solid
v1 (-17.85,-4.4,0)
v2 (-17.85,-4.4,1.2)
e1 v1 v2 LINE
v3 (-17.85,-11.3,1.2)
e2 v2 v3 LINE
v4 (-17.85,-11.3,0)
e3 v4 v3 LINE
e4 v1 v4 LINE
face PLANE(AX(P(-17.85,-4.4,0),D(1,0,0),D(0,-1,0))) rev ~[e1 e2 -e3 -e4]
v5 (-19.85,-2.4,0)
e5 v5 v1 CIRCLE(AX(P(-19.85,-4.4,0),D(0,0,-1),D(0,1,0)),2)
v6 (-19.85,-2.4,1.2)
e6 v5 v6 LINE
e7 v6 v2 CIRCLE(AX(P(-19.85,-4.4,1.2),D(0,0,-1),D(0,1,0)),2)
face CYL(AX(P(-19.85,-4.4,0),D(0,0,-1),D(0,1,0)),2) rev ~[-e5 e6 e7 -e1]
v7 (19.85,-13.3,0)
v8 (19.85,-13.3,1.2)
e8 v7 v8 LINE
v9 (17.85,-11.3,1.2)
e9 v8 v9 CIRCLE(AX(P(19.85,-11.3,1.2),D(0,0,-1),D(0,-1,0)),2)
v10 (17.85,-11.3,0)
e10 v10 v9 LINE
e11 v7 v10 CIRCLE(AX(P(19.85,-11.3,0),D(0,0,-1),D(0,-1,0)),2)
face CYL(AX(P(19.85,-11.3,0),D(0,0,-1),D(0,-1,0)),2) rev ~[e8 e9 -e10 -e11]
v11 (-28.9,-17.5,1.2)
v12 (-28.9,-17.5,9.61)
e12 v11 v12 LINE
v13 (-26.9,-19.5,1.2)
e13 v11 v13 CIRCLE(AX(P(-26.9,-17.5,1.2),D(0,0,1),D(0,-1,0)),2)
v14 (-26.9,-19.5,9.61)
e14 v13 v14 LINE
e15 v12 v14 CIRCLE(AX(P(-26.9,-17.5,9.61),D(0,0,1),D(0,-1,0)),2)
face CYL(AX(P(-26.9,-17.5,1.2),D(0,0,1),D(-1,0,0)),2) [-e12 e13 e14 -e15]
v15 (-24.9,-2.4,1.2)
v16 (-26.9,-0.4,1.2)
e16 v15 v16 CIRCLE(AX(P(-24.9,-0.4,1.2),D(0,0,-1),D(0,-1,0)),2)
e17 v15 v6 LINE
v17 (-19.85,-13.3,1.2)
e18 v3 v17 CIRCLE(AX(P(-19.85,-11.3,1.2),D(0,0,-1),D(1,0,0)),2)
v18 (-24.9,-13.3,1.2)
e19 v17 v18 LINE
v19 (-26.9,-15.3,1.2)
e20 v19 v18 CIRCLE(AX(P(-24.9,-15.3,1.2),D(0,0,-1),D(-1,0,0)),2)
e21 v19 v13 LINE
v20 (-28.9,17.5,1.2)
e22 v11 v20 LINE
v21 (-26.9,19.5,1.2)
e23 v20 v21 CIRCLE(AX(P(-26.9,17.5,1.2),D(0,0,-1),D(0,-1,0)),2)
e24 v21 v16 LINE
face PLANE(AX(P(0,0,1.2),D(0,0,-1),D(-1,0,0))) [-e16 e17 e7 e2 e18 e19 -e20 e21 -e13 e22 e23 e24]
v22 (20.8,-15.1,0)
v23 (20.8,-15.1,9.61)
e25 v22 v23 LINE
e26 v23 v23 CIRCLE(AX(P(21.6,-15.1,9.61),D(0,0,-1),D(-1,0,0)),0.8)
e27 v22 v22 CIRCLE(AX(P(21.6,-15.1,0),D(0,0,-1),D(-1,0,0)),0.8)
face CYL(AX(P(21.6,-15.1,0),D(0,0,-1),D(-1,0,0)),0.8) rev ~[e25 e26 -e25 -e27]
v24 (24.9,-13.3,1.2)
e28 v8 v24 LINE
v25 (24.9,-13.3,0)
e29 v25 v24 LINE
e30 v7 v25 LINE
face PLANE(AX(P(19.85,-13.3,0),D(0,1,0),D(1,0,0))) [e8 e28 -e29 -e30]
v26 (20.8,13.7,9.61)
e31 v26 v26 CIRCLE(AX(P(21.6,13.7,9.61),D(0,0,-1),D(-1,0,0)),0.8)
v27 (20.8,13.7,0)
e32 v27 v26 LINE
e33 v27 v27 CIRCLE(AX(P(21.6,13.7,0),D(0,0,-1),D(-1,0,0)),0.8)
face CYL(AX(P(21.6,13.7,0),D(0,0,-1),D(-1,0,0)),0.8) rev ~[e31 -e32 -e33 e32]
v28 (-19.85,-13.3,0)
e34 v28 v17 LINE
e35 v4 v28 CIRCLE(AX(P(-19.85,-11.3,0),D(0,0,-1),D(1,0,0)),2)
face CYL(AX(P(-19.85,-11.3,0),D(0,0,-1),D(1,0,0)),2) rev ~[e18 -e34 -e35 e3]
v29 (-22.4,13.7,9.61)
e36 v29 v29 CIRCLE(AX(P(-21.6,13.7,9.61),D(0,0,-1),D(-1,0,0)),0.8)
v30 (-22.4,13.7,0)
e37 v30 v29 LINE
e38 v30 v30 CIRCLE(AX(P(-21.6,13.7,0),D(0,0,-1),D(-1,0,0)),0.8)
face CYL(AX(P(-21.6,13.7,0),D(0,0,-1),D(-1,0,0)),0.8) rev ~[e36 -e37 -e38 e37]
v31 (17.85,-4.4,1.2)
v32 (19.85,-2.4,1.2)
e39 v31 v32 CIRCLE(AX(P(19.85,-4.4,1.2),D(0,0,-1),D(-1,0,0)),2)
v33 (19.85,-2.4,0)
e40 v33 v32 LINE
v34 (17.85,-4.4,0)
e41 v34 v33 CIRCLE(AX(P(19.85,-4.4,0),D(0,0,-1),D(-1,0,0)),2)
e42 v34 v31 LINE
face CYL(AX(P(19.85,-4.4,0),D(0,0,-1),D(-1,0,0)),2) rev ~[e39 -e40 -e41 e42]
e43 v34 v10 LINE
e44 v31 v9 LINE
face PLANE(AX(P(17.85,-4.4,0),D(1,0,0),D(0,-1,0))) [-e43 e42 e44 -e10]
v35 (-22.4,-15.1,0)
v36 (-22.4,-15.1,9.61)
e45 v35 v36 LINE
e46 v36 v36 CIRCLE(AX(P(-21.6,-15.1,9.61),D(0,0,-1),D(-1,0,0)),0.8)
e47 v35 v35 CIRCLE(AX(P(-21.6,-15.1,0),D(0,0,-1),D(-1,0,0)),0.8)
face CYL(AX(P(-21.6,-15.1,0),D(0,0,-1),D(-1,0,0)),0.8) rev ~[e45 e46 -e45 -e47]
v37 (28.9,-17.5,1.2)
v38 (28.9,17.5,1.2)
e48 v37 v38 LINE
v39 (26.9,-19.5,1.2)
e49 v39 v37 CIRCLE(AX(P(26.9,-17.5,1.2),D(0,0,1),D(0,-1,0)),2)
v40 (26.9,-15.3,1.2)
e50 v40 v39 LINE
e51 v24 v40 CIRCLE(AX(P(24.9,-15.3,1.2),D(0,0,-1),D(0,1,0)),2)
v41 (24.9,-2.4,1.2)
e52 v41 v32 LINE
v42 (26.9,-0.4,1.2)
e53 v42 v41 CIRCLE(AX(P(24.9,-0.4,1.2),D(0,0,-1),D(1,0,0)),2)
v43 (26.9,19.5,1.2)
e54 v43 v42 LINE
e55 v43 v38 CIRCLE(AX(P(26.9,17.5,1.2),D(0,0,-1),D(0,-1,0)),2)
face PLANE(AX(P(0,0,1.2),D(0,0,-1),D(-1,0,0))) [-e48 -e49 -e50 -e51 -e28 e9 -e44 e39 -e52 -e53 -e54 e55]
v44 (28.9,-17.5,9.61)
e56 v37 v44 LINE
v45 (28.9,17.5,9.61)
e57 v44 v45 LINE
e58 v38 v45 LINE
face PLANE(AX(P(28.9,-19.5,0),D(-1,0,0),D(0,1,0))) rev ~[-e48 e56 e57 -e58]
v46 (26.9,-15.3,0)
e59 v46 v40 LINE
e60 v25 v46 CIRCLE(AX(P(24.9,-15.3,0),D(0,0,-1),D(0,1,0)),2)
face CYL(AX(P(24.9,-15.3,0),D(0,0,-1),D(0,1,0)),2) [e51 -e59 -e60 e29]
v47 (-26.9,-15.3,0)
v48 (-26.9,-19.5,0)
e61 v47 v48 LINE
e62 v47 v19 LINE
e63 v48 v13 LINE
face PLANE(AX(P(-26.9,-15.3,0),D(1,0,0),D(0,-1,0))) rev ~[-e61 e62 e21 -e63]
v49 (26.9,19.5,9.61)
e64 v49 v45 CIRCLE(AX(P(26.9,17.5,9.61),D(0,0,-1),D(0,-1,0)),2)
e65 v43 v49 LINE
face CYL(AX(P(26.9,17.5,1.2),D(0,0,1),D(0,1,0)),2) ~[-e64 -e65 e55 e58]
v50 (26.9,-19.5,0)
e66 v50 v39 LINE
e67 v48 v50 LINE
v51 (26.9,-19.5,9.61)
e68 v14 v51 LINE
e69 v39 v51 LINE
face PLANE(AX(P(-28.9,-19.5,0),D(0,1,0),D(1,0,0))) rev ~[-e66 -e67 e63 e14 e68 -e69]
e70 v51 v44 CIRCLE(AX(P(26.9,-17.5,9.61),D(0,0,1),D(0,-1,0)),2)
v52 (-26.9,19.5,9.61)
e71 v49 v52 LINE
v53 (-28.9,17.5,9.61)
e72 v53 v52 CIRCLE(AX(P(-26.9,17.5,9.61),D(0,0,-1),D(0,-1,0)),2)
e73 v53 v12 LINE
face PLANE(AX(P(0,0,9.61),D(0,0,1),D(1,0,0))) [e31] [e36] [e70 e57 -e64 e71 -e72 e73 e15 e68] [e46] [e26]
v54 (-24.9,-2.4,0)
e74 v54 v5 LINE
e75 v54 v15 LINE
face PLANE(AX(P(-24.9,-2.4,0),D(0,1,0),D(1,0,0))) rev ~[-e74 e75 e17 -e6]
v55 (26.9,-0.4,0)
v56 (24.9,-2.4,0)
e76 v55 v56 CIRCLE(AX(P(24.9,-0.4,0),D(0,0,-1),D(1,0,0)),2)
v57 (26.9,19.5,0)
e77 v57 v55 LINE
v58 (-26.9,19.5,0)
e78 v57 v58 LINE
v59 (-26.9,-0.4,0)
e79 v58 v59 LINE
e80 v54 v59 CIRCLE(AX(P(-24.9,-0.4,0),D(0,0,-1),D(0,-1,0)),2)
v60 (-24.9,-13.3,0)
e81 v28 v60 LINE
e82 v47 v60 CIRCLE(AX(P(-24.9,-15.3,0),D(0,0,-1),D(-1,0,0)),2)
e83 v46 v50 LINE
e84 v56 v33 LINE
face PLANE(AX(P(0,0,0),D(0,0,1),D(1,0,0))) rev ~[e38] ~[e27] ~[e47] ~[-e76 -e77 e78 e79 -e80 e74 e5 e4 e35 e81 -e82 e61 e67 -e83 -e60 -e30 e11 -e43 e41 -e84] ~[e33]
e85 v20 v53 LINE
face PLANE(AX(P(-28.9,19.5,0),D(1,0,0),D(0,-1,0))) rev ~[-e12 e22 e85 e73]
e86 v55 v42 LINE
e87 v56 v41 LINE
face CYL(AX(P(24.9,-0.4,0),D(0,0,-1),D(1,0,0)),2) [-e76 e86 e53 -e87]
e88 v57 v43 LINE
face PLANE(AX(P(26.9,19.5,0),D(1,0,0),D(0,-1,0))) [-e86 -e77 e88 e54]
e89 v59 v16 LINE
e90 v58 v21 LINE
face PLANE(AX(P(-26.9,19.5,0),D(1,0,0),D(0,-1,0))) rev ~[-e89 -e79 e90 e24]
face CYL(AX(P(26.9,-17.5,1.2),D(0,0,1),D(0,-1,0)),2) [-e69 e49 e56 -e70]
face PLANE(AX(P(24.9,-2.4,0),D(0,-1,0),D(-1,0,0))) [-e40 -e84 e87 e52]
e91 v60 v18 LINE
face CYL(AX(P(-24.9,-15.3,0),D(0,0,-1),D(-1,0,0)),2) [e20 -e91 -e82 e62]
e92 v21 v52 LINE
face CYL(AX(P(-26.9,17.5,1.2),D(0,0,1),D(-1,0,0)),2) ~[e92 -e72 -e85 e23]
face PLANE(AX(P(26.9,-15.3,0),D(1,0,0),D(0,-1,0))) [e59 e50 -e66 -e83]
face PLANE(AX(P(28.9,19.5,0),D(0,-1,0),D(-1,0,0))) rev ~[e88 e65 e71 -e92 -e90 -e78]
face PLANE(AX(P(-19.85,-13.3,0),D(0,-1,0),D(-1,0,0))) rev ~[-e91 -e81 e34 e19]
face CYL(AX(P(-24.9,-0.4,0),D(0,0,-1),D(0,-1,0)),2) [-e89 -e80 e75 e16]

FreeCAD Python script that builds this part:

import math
import FreeCAD as App
import Part
import Sketcher
from FreeCAD import Vector


def edges_at(feature, points):
    """Names of the edges that pass closest to the given points."""
    edges = feature.Shape.Edges
    near = lambda p: min(range(len(edges)), key=lambda i: edges[i].distToShape(Part.Vertex(*p))[0])
    return sorted({f"Edge{near(p) + 1}" for p in points})

doc = App.newDocument("Part")
body = doc.addObject("PartDesign::Body", "Body")

# Sketch on XY plane
sketch1 = body.newObject("Sketcher::SketchObject", "Sketch")
sketch1.AttachmentSupport = (doc.getObject("XY_Plane"), [""])
sketch1.MapMode = "FlatFace"
sketch1.addGeometry(Part.LineSegment(Vector(-29, 20, 0), Vector(-29, -20, 0)), False)
sketch1.addGeometry(Part.LineSegment(Vector(-29, -20, 0), Vector(29, -20, 0)), False)
sketch1.addGeometry(Part.LineSegment(Vector(29, -20, 0), Vector(29, 20, 0)), False)
sketch1.addGeometry(Part.LineSegment(Vector(29, 20, 0), Vector(-29, 20, 0)), False)
sketch1.addConstraint(Sketcher.Constraint("Coincident", 0, 2, 1, 1))
sketch1.addConstraint(Sketcher.Constraint("Coincident", 1, 2, 2, 1))
sketch1.addConstraint(Sketcher.Constraint("Coincident", 2, 2, 3, 1))
sketch1.addConstraint(Sketcher.Constraint("Coincident", 3, 2, 0, 1))
sketch1.addConstraint(Sketcher.Constraint("Vertical", 0))
sketch1.addConstraint(Sketcher.Constraint("Horizontal", 1))
sketch1.addConstraint(Sketcher.Constraint("Vertical", 2))
sketch1.addConstraint(Sketcher.Constraint("Horizontal", 3))
sketch1.addConstraint(Sketcher.Constraint("Symmetric", 0, 2, 2, 2, -1, 1))
sketch1.addConstraint(Sketcher.Constraint("DistanceY", 0, 2, 0, 1, 39.0))
sketch1.addConstraint(Sketcher.Constraint("DistanceX", 1, 1, 1, 2, 57.8))
pad1 = body.newObject("PartDesign::Pad", "Pad")
pad1.Profile = sketch1
pad1.Length = 9.61

# Sketch on XY plane
sketch2 = body.newObject("Sketcher::SketchObject", "Sketch001")
sketch2.AttachmentSupport = (doc.getObject("XY_Plane"), [""])
sketch2.MapMode = "FlatFace"
sketch2.addGeometry(Part.Circle(Vector(21.6, -15.1, 0), Vector(0, 0, 1), 0.8), False)
sketch2.addGeometry(Part.Circle(Vector(-21.6, -15.1, 0), Vector(0, 0, 1), 0.8), False)
sketch2.addGeometry(Part.Circle(Vector(21.6, 13.7, 0), Vector(0, 0, 1), 0.8), False)
sketch2.addGeometry(Part.Circle(Vector(-21.6, 13.7, 0), Vector(0, 0, 1), 0.8), False)
sketch2.addConstraint(Sketcher.Constraint("Equal", 0, 1))
sketch2.addConstraint(Sketcher.Constraint("Equal", 1, 2))
sketch2.addConstraint(Sketcher.Constraint("Equal", 2, 3))
sketch2.addConstraint(Sketcher.Constraint("Symmetric", 0, 3, 1, 3, -2))
sketch2.addConstraint(Sketcher.Constraint("Symmetric", 2, 3, 3, 3, -2))
sketch2.addConstraint(Sketcher.Constraint("Vertical", 0, 3, 2, 3))
sketch2.addConstraint(Sketcher.Constraint("Diameter", 0, 1.6))
sketch2.addConstraint(Sketcher.Constraint("DistanceX", -1, 1, 0, 3, 21.6))
sketch2.addConstraint(Sketcher.Constraint("DistanceY", 0, 3, -1, 1, 15.1))
sketch2.addConstraint(Sketcher.Constraint("DistanceY", -1, 1, 2, 3, 13.7))
pocket1 = body.newObject("PartDesign::Pocket", "Pocket")
pocket1.Profile = sketch2
pocket1.Type = "ThroughAll"
pocket1.Reversed = True

# Sketch on XY plane
sketch3 = body.newObject("Sketcher::SketchObject", "Sketch002")
sketch3.AttachmentSupport = (doc.getObject("XY_Plane"), [""])
sketch3.MapMode = "FlatFace"
sketch3.addGeometry(Part.LineSegment(Vector(-28.9, 19.5, 0), Vector(-26.9, 19.5, 0)), False)
sketch3.addGeometry(Part.LineSegment(Vector(-26.9, 19.5, 0), Vector(-26.9, -0.4, 0)), False)
sketch3.addGeometry(Part.ArcOfCircle(Part.Circle(Vector(-24.9, -0.4, 0), Vector(0, 0, 1), 2), math.radians(180), math.radians(270)), False)
sketch3.addGeometry(Part.LineSegment(Vector(-24.9, -2.4, 0), Vector(-19.9, -2.4, 0)), False)
sketch3.addGeometry(Part.ArcOfCircle(Part.Circle(Vector(-19.9, -4.4, 0), Vector(0, 0, 1), 2), math.radians(0), math.radians(90)), False)
sketch3.addGeometry(Part.LineSegment(Vector(-17.9, -4.4, 0), Vector(-17.9, -11.3, 0)), False)
sketch3.addGeometry(Part.ArcOfCircle(Part.Circle(Vector(-19.9, -11.3, 0), Vector(0, 0, 1), 2), math.radians(-90), math.radians(0)), False)
sketch3.addGeometry(Part.LineSegment(Vector(-19.9, -13.3, 0), Vector(-24.9, -13.3, 0)), False)
sketch3.addGeometry(Part.ArcOfCircle(Part.Circle(Vector(-24.9, -15.3, 0), Vector(0, 0, 1), 2), math.radians(90), math.radians(180)), False)
sketch3.addGeometry(Part.LineSegment(Vector(-26.9, -15.3, 0), Vector(-26.9, -19.5, 0)), False)
sketch3.addGeometry(Part.LineSegment(Vector(-26.9, -19.5, 0), Vector(-28.9, -19.5, 0)), False)
sketch3.addGeometry(Part.LineSegment(Vector(-28.9, -19.5, 0), Vector(-28.9, 19.5, 0)), False)
sketch3.addGeometry(Part.LineSegment(Vector(28.9, 19.5, 0), Vector(28.9, -19.5, 0)), False)
sketch3.addGeometry(Part.LineSegment(Vector(28.9, -19.5, 0), Vector(26.9, -19.5, 0)), False)
sketch3.addGeometry(Part.LineSegment(Vector(26.9, -19.5, 0), Vector(26.9, -15.3, 0)), False)
sketch3.addGeometry(Part.ArcOfCircle(Part.Circle(Vector(24.9, -15.3, 0), Vector(0, 0, 1), 2), math.radians(0), math.radians(90)), False)
sketch3.addGeometry(Part.LineSegment(Vector(24.9, -13.3, 0), Vector(19.9, -13.3, 0)), False)
sketch3.addGeometry(Part.ArcOfCircle(Part.Circle(Vector(19.9, -11.3, 0), Vector(0, 0, 1), 2), math.radians(180), math.radians(270)), False)
sketch3.addGeometry(Part.LineSegment(Vector(17.9, -11.3, 0), Vector(17.9, -4.4, 0)), False)
sketch3.addGeometry(Part.ArcOfCircle(Part.Circle(Vector(19.9, -4.4, 0), Vector(0, 0, 1), 2), math.radians(90), math.radians(180)), False)
sketch3.addGeometry(Part.LineSegment(Vector(19.9, -2.4, 0), Vector(24.9, -2.4, 0)), False)
sketch3.addGeometry(Part.ArcOfCircle(Part.Circle(Vector(24.9, -0.4, 0), Vector(0, 0, 1), 2), math.radians(-90), math.radians(0)), False)
sketch3.addGeometry(Part.LineSegment(Vector(26.9, -0.4, 0), Vector(26.9, 19.5, 0)), False)
sketch3.addGeometry(Part.LineSegment(Vector(26.9, 19.5, 0), Vector(28.9, 19.5, 0)), False)
sketch3.addConstraint(Sketcher.Constraint("Coincident", 0, 2, 1, 1))
sketch3.addConstraint(Sketcher.Constraint("Tangent", 1, 2, 2, 1))
sketch3.addConstraint(Sketcher.Constraint("Tangent", 2, 2, 3, 1))
sketch3.addConstraint(Sketcher.Constraint("Tangent", 3, 2, 4, 2))
sketch3.addConstraint(Sketcher.Constraint("Tangent", 4, 1, 5, 1))
sketch3.addConstraint(Sketcher.Constraint("Tangent", 5, 2, 6, 2))
sketch3.addConstraint(Sketcher.Constraint("Tangent", 6, 1, 7, 1))
sketch3.addConstraint(Sketcher.Constraint("Tangent", 7, 2, 8, 1))
sketch3.addConstraint(Sketcher.Constraint("Tangent", 8, 2, 9, 1))
sketch3.addConstraint(Sketcher.Constraint("Coincident", 9, 2, 10, 1))
sketch3.addConstraint(Sketcher.Constraint("Coincident", 10, 2, 11, 1))
sketch3.addConstraint(Sketcher.Constraint("Coincident", 11, 2, 0, 1))
sketch3.addConstraint(Sketcher.Constraint("Coincident", 12, 2, 13, 1))
sketch3.addConstraint(Sketcher.Constraint("Coincident", 13, 2, 14, 1))
sketch3.addConstraint(Sketcher.Constraint("Tangent", 14, 2, 15, 1))
sketch3.addConstraint(Sketcher.Constraint("Tangent", 15, 2, 16, 1))
sketch3.addConstraint(Sketcher.Constraint("Tangent", 16, 2, 17, 2))
sketch3.addConstraint(Sketcher.Constraint("Tangent", 17, 1, 18, 1))
sketch3.addConstraint(Sketcher.Constraint("Tangent", 18, 2, 19, 2))
sketch3.addConstraint(Sketcher.Constraint("Tangent", 19, 1, 20, 1))
sketch3.addConstraint(Sketcher.Constraint("Tangent", 20, 2, 21, 1))
sketch3.addConstraint(Sketcher.Constraint("Tangent", 21, 2, 22, 1))
sketch3.addConstraint(Sketcher.Constraint("Coincident", 22, 2, 23, 1))
sketch3.addConstraint(Sketcher.Constraint("Coincident", 23, 2, 12, 1))
sketch3.addConstraint(Sketcher.Constraint("Horizontal", 0))
sketch3.addConstraint(Sketcher.Constraint("Vertical", 1))
sketch3.addConstraint(Sketcher.Constraint("Horizontal", 3))
sketch3.addConstraint(Sketcher.Constraint("Vertical", 5))
sketch3.addConstraint(Sketcher.Constraint("Horizontal", 7))
sketch3.addConstraint(Sketcher.Constraint("Vertical", 9))
sketch3.addConstraint(Sketcher.Constraint("Horizontal", 10))
sketch3.addConstraint(Sketcher.Constraint("Vertical", 11))
sketch3.addConstraint(Sketcher.Constraint("Vertical", 12))
sketch3.addConstraint(Sketcher.Constraint("Horizontal", 13))
sketch3.addConstraint(Sketcher.Constraint("Vertical", 14))
sketch3.addConstraint(Sketcher.Constraint("Horizontal", 16))
sketch3.addConstraint(Sketcher.Constraint("Vertical", 18))
sketch3.addConstraint(Sketcher.Constraint("Horizontal", 20))
sketch3.addConstraint(Sketcher.Constraint("Vertical", 22))
sketch3.addConstraint(Sketcher.Constraint("Horizontal", 23))
sketch3.addConstraint(Sketcher.Constraint("Equal", 2, 4))
sketch3.addConstraint(Sketcher.Constraint("Equal", 4, 6))
sketch3.addConstraint(Sketcher.Constraint("Equal", 6, 8))
sketch3.addConstraint(Sketcher.Constraint("Equal", 8, 15))
sketch3.addConstraint(Sketcher.Constraint("Equal", 15, 17))
sketch3.addConstraint(Sketcher.Constraint("Equal", 17, 19))
sketch3.addConstraint(Sketcher.Constraint("Equal", 19, 21))
sketch3.addConstraint(Sketcher.Constraint("Symmetric", 11, 2, 12, 2, -1, 1))
sketch3.addConstraint(Sketcher.Constraint("Symmetric", 9, 2, 22, 2, -1, 1))
sketch3.addConstraint(Sketcher.Constraint("Symmetric", 8, 3, 15, 3, -2))
sketch3.addConstraint(Sketcher.Constraint("Symmetric", 4, 3, 19, 3, -2))
sketch3.addConstraint(Sketcher.Constraint("Symmetric", 0, 2, 22, 2, -2))
sketch3.addConstraint(Sketcher.Constraint("Radius", 2, 2.0))
sketch3.addConstraint(Sketcher.Constraint("DistanceX", 0, 1, 0, 2, 2.0))
sketch3.addConstraint(Sketcher.Constraint("DistanceY", 9, 2, 7, 2, 6.2))
sketch3.addConstraint(Sketcher.Constraint("DistanceY", 2, 2, 11, 2, 21.9))
sketch3.addConstraint(Sketcher.Constraint("DistanceY", 11, 1, 11, 2, 39.0))
sketch3.addConstraint(Sketcher.Constraint("DistanceX", 3, 1, 3, 2, 5.05))
sketch3.addConstraint(Sketcher.Constraint("DistanceX", 2, 3, -1, 1, 24.9))
pocket2 = body.newObject("PartDesign::Pocket", "Pocket001")
pocket2.Profile = sketch3
pocket2.Length = 1.2
pocket2.Reversed = True
doc.recompute()

fillet = body.newObject("PartDesign::Fillet", "Fillet")
fillet.Base = (pocket2, edges_at(pocket2, [
    (-28.9, 19.5, 5.405),
    (28.9, 19.5, 5.405),
    (28.9, -19.5, 5.405),
    (-28.9, -19.5, 5.405),
]))
fillet.Radius = 2

doc.recompute()
